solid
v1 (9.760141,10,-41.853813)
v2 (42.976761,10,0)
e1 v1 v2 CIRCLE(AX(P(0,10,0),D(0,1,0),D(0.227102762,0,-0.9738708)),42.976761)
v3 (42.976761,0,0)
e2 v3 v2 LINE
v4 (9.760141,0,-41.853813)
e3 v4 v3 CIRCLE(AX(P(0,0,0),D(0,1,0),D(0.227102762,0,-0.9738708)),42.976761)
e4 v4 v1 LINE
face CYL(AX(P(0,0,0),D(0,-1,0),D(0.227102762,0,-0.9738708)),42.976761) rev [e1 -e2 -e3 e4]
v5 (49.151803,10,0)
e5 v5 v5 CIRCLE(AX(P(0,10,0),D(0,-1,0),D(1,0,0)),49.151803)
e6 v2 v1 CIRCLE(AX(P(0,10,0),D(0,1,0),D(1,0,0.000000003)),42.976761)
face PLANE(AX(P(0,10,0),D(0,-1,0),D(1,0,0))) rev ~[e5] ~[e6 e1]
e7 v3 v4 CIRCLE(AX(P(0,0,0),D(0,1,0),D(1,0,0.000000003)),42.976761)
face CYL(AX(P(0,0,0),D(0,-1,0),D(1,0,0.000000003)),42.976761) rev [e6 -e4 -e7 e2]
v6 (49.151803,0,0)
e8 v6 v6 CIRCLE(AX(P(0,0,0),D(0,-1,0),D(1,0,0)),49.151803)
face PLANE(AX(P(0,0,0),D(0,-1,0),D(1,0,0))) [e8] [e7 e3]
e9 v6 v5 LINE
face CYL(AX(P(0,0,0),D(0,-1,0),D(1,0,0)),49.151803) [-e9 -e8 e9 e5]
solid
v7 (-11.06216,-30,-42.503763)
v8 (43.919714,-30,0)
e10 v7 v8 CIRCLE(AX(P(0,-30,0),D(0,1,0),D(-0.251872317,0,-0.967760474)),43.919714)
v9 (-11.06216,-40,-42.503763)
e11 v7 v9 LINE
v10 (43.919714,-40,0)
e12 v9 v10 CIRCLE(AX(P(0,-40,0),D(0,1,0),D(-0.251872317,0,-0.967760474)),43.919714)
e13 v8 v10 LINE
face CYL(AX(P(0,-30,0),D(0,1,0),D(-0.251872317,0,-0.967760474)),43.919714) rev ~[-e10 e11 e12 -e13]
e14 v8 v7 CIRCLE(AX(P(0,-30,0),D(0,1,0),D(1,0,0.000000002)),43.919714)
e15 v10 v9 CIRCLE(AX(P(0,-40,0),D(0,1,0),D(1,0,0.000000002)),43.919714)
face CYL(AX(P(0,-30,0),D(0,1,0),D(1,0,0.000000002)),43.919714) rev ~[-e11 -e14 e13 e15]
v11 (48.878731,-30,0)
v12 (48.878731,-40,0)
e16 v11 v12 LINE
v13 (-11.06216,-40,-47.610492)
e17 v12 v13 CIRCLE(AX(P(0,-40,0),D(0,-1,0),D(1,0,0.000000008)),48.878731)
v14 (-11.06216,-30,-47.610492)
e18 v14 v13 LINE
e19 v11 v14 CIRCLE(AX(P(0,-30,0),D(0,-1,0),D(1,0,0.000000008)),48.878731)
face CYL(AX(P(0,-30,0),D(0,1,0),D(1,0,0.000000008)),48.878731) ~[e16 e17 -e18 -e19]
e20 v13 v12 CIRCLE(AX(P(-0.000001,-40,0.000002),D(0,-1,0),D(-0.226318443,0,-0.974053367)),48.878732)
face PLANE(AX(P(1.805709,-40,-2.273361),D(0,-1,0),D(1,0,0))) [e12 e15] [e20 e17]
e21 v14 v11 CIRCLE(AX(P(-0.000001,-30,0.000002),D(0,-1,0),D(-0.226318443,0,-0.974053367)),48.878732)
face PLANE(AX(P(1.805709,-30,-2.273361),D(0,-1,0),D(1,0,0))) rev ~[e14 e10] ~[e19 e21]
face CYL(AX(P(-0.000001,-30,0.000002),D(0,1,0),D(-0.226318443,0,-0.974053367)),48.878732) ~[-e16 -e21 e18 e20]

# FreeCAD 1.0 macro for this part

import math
import FreeCAD as App
import Part
import Sketcher
from FreeCAD import Vector
Q = App.Units.Quantity

doc = App.newDocument("Part")
params = doc.addObject("Spreadsheet::Sheet", "Params")
for row, (alias, value) in enumerate([
    ("pad1_length", "10 mm"),
    ("pad2_length", "10 mm"),
], start=1):
    params.set(f"A{row}", alias)
    params.set(f"B{row}", "=" + value)
    params.setAlias(f"B{row}", alias)

body = doc.addObject("PartDesign::Body", "Body")

# Sketch on XZ plane
sketch1 = doc.addObject("Sketcher::SketchObject", "Sketch")
body.addObject(sketch1)
sketch1.AttachmentSupport = (doc.XZ_Plane, [""])
sketch1.MapMode = "FlatFace"
sketch1.addGeometry([
    Part.Circle(Vector(0, 0, 0), Vector(0, 0, 1), 49),
    Part.ArcOfCircle(Part.Circle(Vector(0, 0, 0), Vector(0, 0, 1), 43), math.radians(-77), math.radians(0)),
    Part.ArcOfCircle(Part.Circle(Vector(0, 0, 0), Vector(0, 0, 1), 43), math.radians(0), math.radians(283)),
], False)
sketch1.addConstraint([
    Sketcher.Constraint("Tangent", 1, 1, 2, 2),
    Sketcher.Constraint("Coincident", 2, 1, 1, 2),
    Sketcher.Constraint("Coincident", 0, 3, -1, 1),
    Sketcher.Constraint("Coincident", 1, 3, -1, 1),
    Sketcher.Constraint("PointOnObject", 2, 1, -1),
    Sketcher.Constraint("Radius", 1, Q("42.976761 mm")),
    Sketcher.Constraint("Diameter", 0, Q("98.303606 mm")),
    Sketcher.Constraint("DistanceX", -1, 1, 1, 1, Q("9.760141 mm")),
])
pad1 = doc.addObject("PartDesign::Pad", "Pad")
body.addObject(pad1)
pad1.Profile = sketch1
pad1.setExpression("Length", "Params.pad1_length")
pad1.Reversed = True
body2 = doc.addObject("PartDesign::Body", "Body001")

# Sketch on XZ plane
sketch2 = doc.addObject("Sketcher::SketchObject", "Sketch001")
body2.addObject(sketch2)
sketch2.AttachmentSupport = (doc.getObject("XZ_Plane001"), [""])
sketch2.MapMode = "FlatFace"
sketch2.AttachmentOffset = App.Placement(Vector(0, 0, 30), App.Rotation())
sketch2.addGeometry([
    Part.ArcOfCircle(Part.Circle(Vector(0, 0, 0), Vector(0, 0, 1), 49), math.radians(-103), math.radians(0)),
    Part.ArcOfCircle(Part.Circle(Vector(0, 0, 0), Vector(0, 0, 1), 49), math.radians(0), math.radians(257)),
    Part.ArcOfCircle(Part.Circle(Vector(0, 0, 0), Vector(0, 0, 1), 44), math.radians(0), math.radians(255)),
    Part.ArcOfCircle(Part.Circle(Vector(0, 0, 0), Vector(0, 0, 1), 44), math.radians(-105), math.radians(0)),
], False)
sketch2.addConstraint([
    Sketcher.Constraint("Tangent", 0, 1, 1, 2),
    Sketcher.Constraint("Coincident", 1, 1, 0, 2),
    Sketcher.Constraint("Tangent", 2, 1, 3, 2),
    Sketcher.Constraint("Coincident", 3, 1, 2, 2),
    Sketcher.Constraint("Coincident", 0, 3, -1, 1),
    Sketcher.Constraint("Coincident", 2, 3, -1, 1),
    Sketcher.Constraint("PointOnObject", 1, 1, -1),
    Sketcher.Constraint("PointOnObject", 2, 1, -1),
    Sketcher.Constraint("Vertical", 0, 1, 3, 1),
    Sketcher.Constraint("Radius", 1, Q("48.878731 mm")),
    Sketcher.Constraint("Radius", 2, Q("43.919714 mm")),
    Sketcher.Constraint("DistanceX", 0, 1, -1, 1, Q("11.06216 mm")),
])
pad2 = doc.addObject("PartDesign::Pad", "Pad001")
body2.addObject(pad2)
pad2.Profile = sketch2
pad2.setExpression("Length", "Params.pad2_length")

doc.recompute()
